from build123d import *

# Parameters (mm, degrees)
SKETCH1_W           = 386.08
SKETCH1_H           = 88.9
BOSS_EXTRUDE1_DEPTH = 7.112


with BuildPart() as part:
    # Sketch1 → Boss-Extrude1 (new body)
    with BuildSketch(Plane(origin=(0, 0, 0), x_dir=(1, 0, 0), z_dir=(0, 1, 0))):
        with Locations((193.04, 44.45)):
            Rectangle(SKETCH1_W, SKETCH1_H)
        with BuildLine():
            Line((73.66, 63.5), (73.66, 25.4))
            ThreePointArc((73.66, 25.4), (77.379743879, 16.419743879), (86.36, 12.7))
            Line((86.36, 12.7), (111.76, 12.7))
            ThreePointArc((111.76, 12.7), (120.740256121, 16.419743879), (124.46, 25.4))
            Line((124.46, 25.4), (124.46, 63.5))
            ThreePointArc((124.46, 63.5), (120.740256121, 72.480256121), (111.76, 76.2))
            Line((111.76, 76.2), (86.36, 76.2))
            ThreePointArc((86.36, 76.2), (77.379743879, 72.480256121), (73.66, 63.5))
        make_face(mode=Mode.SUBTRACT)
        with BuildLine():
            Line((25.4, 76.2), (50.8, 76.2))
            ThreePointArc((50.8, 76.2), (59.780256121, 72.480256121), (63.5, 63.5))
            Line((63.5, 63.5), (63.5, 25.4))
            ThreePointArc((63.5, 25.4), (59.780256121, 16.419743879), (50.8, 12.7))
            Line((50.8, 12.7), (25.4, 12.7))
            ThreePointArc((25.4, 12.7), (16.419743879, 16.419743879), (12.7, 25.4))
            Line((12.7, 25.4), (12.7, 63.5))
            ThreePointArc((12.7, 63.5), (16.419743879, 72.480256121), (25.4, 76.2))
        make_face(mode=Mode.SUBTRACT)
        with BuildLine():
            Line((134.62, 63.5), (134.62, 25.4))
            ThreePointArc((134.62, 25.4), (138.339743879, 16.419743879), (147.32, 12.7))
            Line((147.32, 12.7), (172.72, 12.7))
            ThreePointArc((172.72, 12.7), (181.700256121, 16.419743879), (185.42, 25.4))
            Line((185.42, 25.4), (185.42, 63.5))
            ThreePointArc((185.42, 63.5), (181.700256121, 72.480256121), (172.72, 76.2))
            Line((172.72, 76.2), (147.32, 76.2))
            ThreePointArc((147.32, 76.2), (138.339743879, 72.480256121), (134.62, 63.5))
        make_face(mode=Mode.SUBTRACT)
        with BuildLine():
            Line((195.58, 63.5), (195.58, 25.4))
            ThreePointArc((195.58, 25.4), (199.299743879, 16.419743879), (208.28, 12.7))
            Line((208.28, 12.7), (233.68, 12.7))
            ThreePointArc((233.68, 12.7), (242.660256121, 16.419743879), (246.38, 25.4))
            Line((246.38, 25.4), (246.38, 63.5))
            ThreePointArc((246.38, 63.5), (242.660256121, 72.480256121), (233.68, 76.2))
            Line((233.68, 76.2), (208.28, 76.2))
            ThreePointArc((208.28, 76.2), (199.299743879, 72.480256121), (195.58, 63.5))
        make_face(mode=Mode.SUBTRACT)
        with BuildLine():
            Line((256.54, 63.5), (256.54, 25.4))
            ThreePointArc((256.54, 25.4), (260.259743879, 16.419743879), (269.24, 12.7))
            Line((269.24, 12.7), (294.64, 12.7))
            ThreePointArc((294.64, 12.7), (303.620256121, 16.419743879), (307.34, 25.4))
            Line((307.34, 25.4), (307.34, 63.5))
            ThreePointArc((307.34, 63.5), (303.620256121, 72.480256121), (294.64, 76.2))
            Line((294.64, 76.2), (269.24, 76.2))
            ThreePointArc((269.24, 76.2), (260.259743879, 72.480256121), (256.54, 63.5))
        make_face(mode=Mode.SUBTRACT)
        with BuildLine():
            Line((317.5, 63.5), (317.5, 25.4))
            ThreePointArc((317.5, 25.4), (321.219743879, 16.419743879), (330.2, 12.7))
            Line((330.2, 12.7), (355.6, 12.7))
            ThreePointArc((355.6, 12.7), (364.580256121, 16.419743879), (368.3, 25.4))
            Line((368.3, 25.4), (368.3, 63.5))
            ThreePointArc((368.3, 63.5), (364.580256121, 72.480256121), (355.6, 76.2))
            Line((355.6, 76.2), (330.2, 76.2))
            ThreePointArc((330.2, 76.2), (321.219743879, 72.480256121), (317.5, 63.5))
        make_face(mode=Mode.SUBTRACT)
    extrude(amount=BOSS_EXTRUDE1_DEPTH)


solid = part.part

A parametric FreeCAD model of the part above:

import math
import FreeCAD as App
import Part
import Sketcher
from FreeCAD import Vector
Q = App.Units.Quantity

doc = App.newDocument("Part")
params = doc.addObject("Spreadsheet::Sheet", "Params")
for row, (alias, value) in enumerate([
    ("sketch1_radius", "0.5 in"),
    ("sketch1_width", "1 in"),
    ("sketch1_width2", "15.2 in"),
    ("sketch1_height", "3.5 in"),
    ("sketch1_height2", "1.5 in"),
    ("pad1_length", "0.28 in"),
], start=1):
    params.set(f"A{row}", alias)
    params.set(f"B{row}", "=" + value)
    params.setAlias(f"B{row}", alias)

body = doc.addObject("PartDesign::Body", "Body")

sketch1 = doc.addObject("Sketcher::SketchObject", "Sketch")
body.addObject(sketch1)
sketch1.AttachmentSupport = (doc.XZ_Plane, [""])
sketch1.MapMode = "FlatFace"
sketch1.addGeometry([
    Part.LineSegment(Vector(0, -89, 0), Vector(0, 0, 0)),
    Part.LineSegment(Vector(0, 0, 0), Vector(386, 0, 0)),
    Part.LineSegment(Vector(386, 0, 0), Vector(386, -89, 0)),
    Part.LineSegment(Vector(386, -89, 0), Vector(0, -89, 0)),
    Part.ArcOfCircle(Part.Circle(Vector(25, -64, 0), Vector(0, 0, 1), 13), math.radians(180), math.radians(270)),
    Part.LineSegment(Vector(25, -76, 0), Vector(51, -76, 0)),
    Part.ArcOfCircle(Part.Circle(Vector(51, -64, 0), Vector(0, 0, 1), 13), math.radians(-90), math.radians(0)),
    Part.LineSegment(Vector(64, -64, 0), Vector(64, -25, 0)),
    Part.ArcOfCircle(Part.Circle(Vector(51, -25, 0), Vector(0, 0, 1), 13), math.radians(0), math.radians(90)),
    Part.LineSegment(Vector(51, -13, 0), Vector(25, -13, 0)),
    Part.ArcOfCircle(Part.Circle(Vector(25, -25, 0), Vector(0, 0, 1), 13), math.radians(90), math.radians(180)),
    Part.LineSegment(Vector(13, -25, 0), Vector(13, -64, 0)),
    Part.LineSegment(Vector(74, -25, 0), Vector(74, -64, 0)),
    Part.ArcOfCircle(Part.Circle(Vector(86, -64, 0), Vector(0, 0, 1), 13), math.radians(180), math.radians(270)),
    Part.LineSegment(Vector(86, -76, 0), Vector(112, -76, 0)),
    Part.ArcOfCircle(Part.Circle(Vector(112, -64, 0), Vector(0, 0, 1), 13), math.radians(-90), math.radians(0)),
    Part.LineSegment(Vector(124, -64, 0), Vector(124, -25, 0)),
    Part.ArcOfCircle(Part.Circle(Vector(112, -25, 0), Vector(0, 0, 1), 13), math.radians(0), math.radians(90)),
    Part.LineSegment(Vector(112, -13, 0), Vector(86, -13, 0)),
    Part.ArcOfCircle(Part.Circle(Vector(86, -25, 0), Vector(0, 0, 1), 13), math.radians(90), math.radians(180)),
    Part.LineSegment(Vector(135, -25, 0), Vector(135, -64, 0)),
    Part.ArcOfCircle(Part.Circle(Vector(147, -64, 0), Vector(0, 0, 1), 13), math.radians(180), math.radians(270)),
    Part.LineSegment(Vector(147, -76, 0), Vector(173, -76, 0)),
    Part.ArcOfCircle(Part.Circle(Vector(173, -64, 0), Vector(0, 0, 1), 13), math.radians(-90), math.radians(0)),
    Part.LineSegment(Vector(185, -64, 0), Vector(185, -25, 0)),
    Part.ArcOfCircle(Part.Circle(Vector(173, -25, 0), Vector(0, 0, 1), 13), math.radians(0), math.radians(90)),
    Part.LineSegment(Vector(173, -13, 0), Vector(147, -13, 0)),
    Part.ArcOfCircle(Part.Circle(Vector(147, -25, 0), Vector(0, 0, 1), 13), math.radians(90), math.radians(180)),
    Part.LineSegment(Vector(196, -25, 0), Vector(196, -64, 0)),
    Part.ArcOfCircle(Part.Circle(Vector(208, -64, 0), Vector(0, 0, 1), 13), math.radians(180), math.radians(270)),
    Part.LineSegment(Vector(208, -76, 0), Vector(234, -76, 0)),
    Part.ArcOfCircle(Part.Circle(Vector(234, -64, 0), Vector(0, 0, 1), 13), math.radians(-90), math.radians(0)),
    Part.LineSegment(Vector(246, -64, 0), Vector(246, -25, 0)),
    Part.ArcOfCircle(Part.Circle(Vector(234, -25, 0), Vector(0, 0, 1), 13), math.radians(0), math.radians(90)),
    Part.LineSegment(Vector(234, -13, 0), Vector(208, -13, 0)),
    Part.ArcOfCircle(Part.Circle(Vector(208, -25, 0), Vector(0, 0, 1), 13), math.radians(90), math.radians(180)),
    Part.LineSegment(Vector(257, -25, 0), Vector(257, -64, 0)),
    Part.ArcOfCircle(Part.Circle(Vector(269, -64, 0), Vector(0, 0, 1), 13), math.radians(180), math.radians(270)),
    Part.LineSegment(Vector(269, -76, 0), Vector(295, -76, 0)),
    Part.ArcOfCircle(Part.Circle(Vector(295, -64, 0), Vector(0, 0, 1), 13), math.radians(-90), math.radians(0)),
    Part.LineSegment(Vector(307, -64, 0), Vector(307, -25, 0)),
    Part.ArcOfCircle(Part.Circle(Vector(295, -25, 0), Vector(0, 0, 1), 13), math.radians(0), math.radians(90)),
    Part.LineSegment(Vector(295, -13, 0), Vector(269, -13, 0)),
    Part.ArcOfCircle(Part.Circle(Vector(269, -25, 0), Vector(0, 0, 1), 13), math.radians(90), math.radians(180)),
    Part.LineSegment(Vector(318, -25, 0), Vector(318, -64, 0)),
    Part.ArcOfCircle(Part.Circle(Vector(330, -64, 0), Vector(0, 0, 1), 13), math.radians(180), math.radians(270)),
    Part.LineSegment(Vector(330, -76, 0), Vector(356, -76, 0)),
    Part.ArcOfCircle(Part.Circle(Vector(356, -64, 0), Vector(0, 0, 1), 13), math.radians(-90), math.radians(0)),
    Part.LineSegment(Vector(368, -64, 0), Vector(368, -25, 0)),
    Part.ArcOfCircle(Part.Circle(Vector(356, -25, 0), Vector(0, 0, 1), 13), math.radians(0), math.radians(90)),
    Part.LineSegment(Vector(356, -13, 0), Vector(330, -13, 0)),
    Part.ArcOfCircle(Part.Circle(Vector(330, -25, 0), Vector(0, 0, 1), 13), math.radians(90), math.radians(180)),
], False)
sketch1.addConstraint([
    Sketcher.Constraint("Coincident", 0, 2, 1, 1),
    Sketcher.Constraint("Coincident", 1, 2, 2, 1),
    Sketcher.Constraint("Coincident", 2, 2, 3, 1),
    Sketcher.Constraint("Coincident", 3, 2, 0, 1),
    Sketcher.Constraint("Tangent", 4, 2, 5, 1),
    Sketcher.Constraint("Tangent", 5, 2, 6, 1),
    Sketcher.Constraint("Tangent", 6, 2, 7, 1),
    Sketcher.Constraint("Tangent", 7, 2, 8, 1),
    Sketcher.Constraint("Tangent", 8, 2, 9, 1),
    Sketcher.Constraint("Tangent", 9, 2, 10, 1),
    Sketcher.Constraint("Tangent", 10, 2, 11, 1),
    Sketcher.Constraint("Tangent", 11, 2, 4, 1),
    Sketcher.Constraint("Tangent", 12, 2, 13, 1),
    Sketcher.Constraint("Tangent", 13, 2, 14, 1),
    Sketcher.Constraint("Tangent", 14, 2, 15, 1),
    Sketcher.Constraint("Tangent", 15, 2, 16, 1),
    Sketcher.Constraint("Tangent", 16, 2, 17, 1),
    Sketcher.Constraint("Tangent", 17, 2, 18, 1),
    Sketcher.Constraint("Tangent", 18, 2, 19, 1),
    Sketcher.Constraint("Tangent", 19, 2, 12, 1),
    Sketcher.Constraint("Tangent", 20, 2, 21, 1),
    Sketcher.Constraint("Tangent", 21, 2, 22, 1),
    Sketcher.Constraint("Tangent", 22, 2, 23, 1),
    Sketcher.Constraint("Tangent", 23, 2, 24, 1),
    Sketcher.Constraint("Tangent", 24, 2, 25, 1),
    Sketcher.Constraint("Tangent", 25, 2, 26, 1),
    Sketcher.Constraint("Tangent", 26, 2, 27, 1),
    Sketcher.Constraint("Tangent", 27, 2, 20, 1),
    Sketcher.Constraint("Tangent", 28, 2, 29, 1),
    Sketcher.Constraint("Tangent", 29, 2, 30, 1),
    Sketcher.Constraint("Tangent", 30, 2, 31, 1),
    Sketcher.Constraint("Tangent", 31, 2, 32, 1),
    Sketcher.Constraint("Tangent", 32, 2, 33, 1),
    Sketcher.Constraint("Tangent", 33, 2, 34, 1),
    Sketcher.Constraint("Tangent", 34, 2, 35, 1),
    Sketcher.Constraint("Tangent", 35, 2, 28, 1),
    Sketcher.Constraint("Tangent", 36, 2, 37, 1),
    Sketcher.Constraint("Tangent", 37, 2, 38, 1),
    Sketcher.Constraint("Tangent", 38, 2, 39, 1),
    Sketcher.Constraint("Tangent", 39, 2, 40, 1),
    Sketcher.Constraint("Tangent", 40, 2, 41, 1),
    Sketcher.Constraint("Tangent", 41, 2, 42, 1),
    Sketcher.Constraint("Tangent", 42, 2, 43, 1),
    Sketcher.Constraint("Tangent", 43, 2, 36, 1),
    Sketcher.Constraint("Tangent", 44, 2, 45, 1),
    Sketcher.Constraint("Tangent", 45, 2, 46, 1),
    Sketcher.Constraint("Tangent", 46, 2, 47, 1),
    Sketcher.Constraint("Tangent", 47, 2, 48, 1),
    Sketcher.Constraint("Tangent", 48, 2, 49, 1),
    Sketcher.Constraint("Tangent", 49, 2, 50, 1),
    Sketcher.Constraint("Tangent", 50, 2, 51, 1),
    Sketcher.Constraint("Tangent", 51, 2, 44, 1),
    Sketcher.Constraint("Vertical", 0),
    Sketcher.Constraint("Horizontal", 1),
    Sketcher.Constraint("Vertical", 2),
    Sketcher.Constraint("Horizontal", 3),
    Sketcher.Constraint("Horizontal", 5),
    Sketcher.Constraint("Vertical", 7),
    Sketcher.Constraint("Horizontal", 9),
    Sketcher.Constraint("Vertical", 11),
    Sketcher.Constraint("Vertical", 12),
    Sketcher.Constraint("Horizontal", 14),
    Sketcher.Constraint("Vertical", 16),
    Sketcher.Constraint("Horizontal", 18),
    Sketcher.Constraint("Vertical", 20),
    Sketcher.Constraint("Horizontal", 22),
    Sketcher.Constraint("Vertical", 24),
    Sketcher.Constraint("Horizontal", 26),
    Sketcher.Constraint("Vertical", 28),
    Sketcher.Constraint("Horizontal", 30),
    Sketcher.Constraint("Vertical", 32),
    Sketcher.Constraint("Horizontal", 34),
    Sketcher.Constraint("Vertical", 36),
    Sketcher.Constraint("Horizontal", 38),
    Sketcher.Constraint("Vertical", 40),
    Sketcher.Constraint("Horizontal", 42),
    Sketcher.Constraint("Vertical", 44),
    Sketcher.Constraint("Horizontal", 46),
    Sketcher.Constraint("Vertical", 48),
    Sketcher.Constraint("Horizontal", 50),
    Sketcher.Constraint("Coincident", 0, 2, -1, 1),
    Sketcher.Constraint("Equal", 4, 6),
    Sketcher.Constraint("Equal", 6, 8),
    Sketcher.Constraint("Equal", 8, 10),
    Sketcher.Constraint("Equal", 10, 13),
    Sketcher.Constraint("Equal", 13, 15),
    Sketcher.Constraint("Equal", 15, 17),
    Sketcher.Constraint("Equal", 17, 19),
    Sketcher.Constraint("Equal", 19, 21),
    Sketcher.Constraint("Equal", 21, 23),
    Sketcher.Constraint("Equal", 23, 25),
    Sketcher.Constraint("Equal", 25, 27),
    Sketcher.Constraint("Equal", 27, 29),
    Sketcher.Constraint("Equal", 29, 31),
    Sketcher.Constraint("Equal", 31, 33),
    Sketcher.Constraint("Equal", 33, 35),
    Sketcher.Constraint("Equal", 35, 37),
    Sketcher.Constraint("Equal", 37, 39),
    Sketcher.Constraint("Equal", 39, 41),
    Sketcher.Constraint("Equal", 41, 43),
    Sketcher.Constraint("Equal", 43, 45),
    Sketcher.Constraint("Equal", 45, 47),
    Sketcher.Constraint("Equal", 47, 49),
    Sketcher.Constraint("Equal", 49, 51),
    Sketcher.Constraint("Horizontal", 6, 3, 13, 3),
    Sketcher.Constraint("Horizontal", 10, 3, 17, 3),
    Sketcher.Constraint("Horizontal", 15, 3, 21, 3),
    Sketcher.Constraint("Horizontal", 19, 3, 25, 3),
    Sketcher.Constraint("Horizontal", 23, 3, 29, 3),
    Sketcher.Constraint("Horizontal", 27, 3, 33, 3),
    Sketcher.Constraint("Horizontal", 31, 3, 37, 3),
    Sketcher.Constraint("Horizontal", 35, 3, 41, 3),
    Sketcher.Constraint("Horizontal", 39, 3, 45, 3),
    Sketcher.Constraint("Horizontal", 43, 3, 49, 3),
    Sketcher.Constraint("Equal", 9, 14),
    Sketcher.Constraint("Equal", 18, 22),
    Sketcher.Constraint("Equal", 26, 30),
    Sketcher.Constraint("Equal", 34, 38),
    Sketcher.Constraint("Equal", 42, 46),
    Sketcher.Constraint("Radius", 4, Q("0.5 in")),
    Sketcher.Constraint("DistanceX", 5, 1, 5, 2, Q("1 in")),
    Sketcher.Constraint("DistanceX", 1, 1, 1, 2, Q("15.2 in")),
    Sketcher.Constraint("DistanceY", 0, 1, 0, 2, Q("3.5 in")),
    Sketcher.Constraint("DistanceY", 7, 1, 7, 2, Q("1.5 in")),
    Sketcher.Constraint("DistanceX", -1, 1, 4, 3, Q("1 in")),
    Sketcher.Constraint("DistanceY", 8, 3, -1, 1, Q("1 in")),
    Sketcher.Constraint("DistanceX", -1, 1, 45, 3, Q("13 in")),
    Sketcher.Constraint("DistanceX", -1, 1, 13, 3, Q("3.4 in")),
    Sketcher.Constraint("DistanceX", -1, 1, 21, 3, Q("5.8 in")),
    Sketcher.Constraint("DistanceX", -1, 1, 29, 3, Q("8.2 in")),
    Sketcher.Constraint("DistanceX", -1, 1, 37, 3, Q("10.6 in")),
])
sketch1.setExpression("Constraints[119]", "Params.sketch1_radius")
sketch1.setExpression("Constraints[120]", "Params.sketch1_width")
sketch1.setExpression("Constraints[121]", "Params.sketch1_width2")
sketch1.setExpression("Constraints[122]", "Params.sketch1_height")
sketch1.setExpression("Constraints[123]", "Params.sketch1_height2")
pad1 = doc.addObject("PartDesign::Pad", "Pad")
body.addObject(pad1)
pad1.Profile = sketch1
pad1.setExpression("Length", "Params.pad1_length")
pad1.Reversed = True

doc.recompute()
